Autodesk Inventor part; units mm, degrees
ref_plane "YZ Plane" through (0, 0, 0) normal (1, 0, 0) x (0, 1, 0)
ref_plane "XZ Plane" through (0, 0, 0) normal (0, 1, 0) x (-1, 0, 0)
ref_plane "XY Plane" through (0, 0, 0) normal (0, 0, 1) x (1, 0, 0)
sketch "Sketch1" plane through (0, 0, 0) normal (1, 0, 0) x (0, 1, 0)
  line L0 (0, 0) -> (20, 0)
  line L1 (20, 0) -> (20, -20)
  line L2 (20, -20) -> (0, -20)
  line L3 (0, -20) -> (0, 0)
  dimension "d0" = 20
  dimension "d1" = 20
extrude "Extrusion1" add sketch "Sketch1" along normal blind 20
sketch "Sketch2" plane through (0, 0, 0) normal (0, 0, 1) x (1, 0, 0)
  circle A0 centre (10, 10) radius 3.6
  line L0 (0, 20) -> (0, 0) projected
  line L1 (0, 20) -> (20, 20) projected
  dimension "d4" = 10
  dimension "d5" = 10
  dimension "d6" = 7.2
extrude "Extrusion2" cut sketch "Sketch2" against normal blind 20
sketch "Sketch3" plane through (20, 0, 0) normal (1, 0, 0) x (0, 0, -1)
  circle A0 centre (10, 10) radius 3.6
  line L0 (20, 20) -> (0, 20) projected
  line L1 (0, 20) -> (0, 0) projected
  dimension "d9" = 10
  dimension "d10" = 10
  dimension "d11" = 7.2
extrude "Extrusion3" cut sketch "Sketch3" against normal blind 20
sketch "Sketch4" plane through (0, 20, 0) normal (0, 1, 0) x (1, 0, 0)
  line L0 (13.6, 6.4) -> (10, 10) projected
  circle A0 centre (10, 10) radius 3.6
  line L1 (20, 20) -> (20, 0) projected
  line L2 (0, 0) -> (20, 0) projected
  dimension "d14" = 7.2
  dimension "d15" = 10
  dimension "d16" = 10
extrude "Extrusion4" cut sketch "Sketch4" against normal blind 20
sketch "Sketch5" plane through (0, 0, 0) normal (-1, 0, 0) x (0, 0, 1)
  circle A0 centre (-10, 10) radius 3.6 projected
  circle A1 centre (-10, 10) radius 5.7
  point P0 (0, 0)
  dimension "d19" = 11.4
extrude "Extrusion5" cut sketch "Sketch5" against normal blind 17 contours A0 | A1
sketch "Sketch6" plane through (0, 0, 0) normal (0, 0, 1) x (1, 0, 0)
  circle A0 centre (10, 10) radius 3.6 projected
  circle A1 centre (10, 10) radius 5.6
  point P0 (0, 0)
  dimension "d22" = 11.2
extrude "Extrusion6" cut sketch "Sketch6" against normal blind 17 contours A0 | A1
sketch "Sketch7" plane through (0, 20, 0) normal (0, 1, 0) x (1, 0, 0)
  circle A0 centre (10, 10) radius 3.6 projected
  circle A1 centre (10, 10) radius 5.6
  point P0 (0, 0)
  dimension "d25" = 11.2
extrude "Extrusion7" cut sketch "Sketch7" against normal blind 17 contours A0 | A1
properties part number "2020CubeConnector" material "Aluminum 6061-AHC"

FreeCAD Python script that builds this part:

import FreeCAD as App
import Part
import Sketcher
from FreeCAD import Vector


def add_polygon(sketch, points):
    """Adds a closed chain of lines whose ends are joined by coincident constraints."""
    first, n = sketch.GeometryCount, len(points)
    for a, b in zip(points, points[1:] + points[:1]):
        sketch.addGeometry(Part.LineSegment(App.Vector(*a, 0), App.Vector(*b, 0)), False)
    for i in range(n):
        sketch.addConstraint(Sketcher.Constraint("Coincident", first + i, 2, first + (i + 1) % n, 1))

doc = App.newDocument("Part")
body = doc.addObject("PartDesign::Body", "Body")

# Sketch on YZ plane
sketch1 = body.newObject("Sketcher::SketchObject", "Sketch")
sketch1.AttachmentSupport = (doc.getObject("YZ_Plane"), [""])
sketch1.MapMode = "FlatFace"
add_polygon(sketch1, [(20, 0), (0, 0), (0, -20), (20, -20)])  # lines 0-3
sketch1.addConstraint([
    Sketcher.Constraint("Horizontal", 0),
    Sketcher.Constraint("Vertical", 1),
    Sketcher.Constraint("Horizontal", 2),
    Sketcher.Constraint("Vertical", 3),
    Sketcher.Constraint("Coincident", 0, 2, -1, 1),
    Sketcher.Constraint("Equal", 2, 1),
    Sketcher.Constraint("DistanceX", 0, 2, 0, 1, 20.0),
])
pad1 = body.newObject("PartDesign::Pad", "Pad")
pad1.Profile = sketch1
pad1.Length = 20

# Sketch on XY plane
sketch2 = body.newObject("Sketcher::SketchObject", "Sketch001")
sketch2.AttachmentSupport = (doc.getObject("XY_Plane"), [""])
sketch2.MapMode = "FlatFace"
sketch2.addGeometry(Part.Circle(Vector(10, 10, 0), Vector(0, 0, 1), 3.6), False)
sketch2.addConstraint([
    Sketcher.Constraint("Diameter", 0, 7.2),
    Sketcher.Constraint("DistanceX", -1, 1, 0, 3, 10.0),
    Sketcher.Constraint("DistanceY", -1, 1, 0, 3, 10.0),
])
pocket1 = body.newObject("PartDesign::Pocket", "Pocket")
pocket1.Profile = sketch2
pocket1.Length = 20

# Sketch on YZ plane
sketch3 = body.newObject("Sketcher::SketchObject", "Sketch002")
sketch3.AttachmentSupport = (doc.getObject("YZ_Plane"), [""])
sketch3.MapMode = "FlatFace"
sketch3.AttachmentOffset = App.Placement(Vector(0, 0, 20), App.Rotation())
sketch3.addGeometry(Part.Circle(Vector(10, -10, 0), Vector(0, 0, 1), 3.6), False)
sketch3.addConstraint([
    Sketcher.Constraint("Diameter", 0, 7.2),
    Sketcher.Constraint("DistanceX", -1, 1, 0, 3, 10.0),
    Sketcher.Constraint("DistanceY", 0, 3, -1, 1, 10.0),
])
pocket2 = body.newObject("PartDesign::Pocket", "Pocket001")
pocket2.Profile = sketch3
pocket2.Length = 20

# Sketch on XZ plane
sketch4 = body.newObject("Sketcher::SketchObject", "Sketch003")
sketch4.AttachmentSupport = (doc.getObject("XZ_Plane"), [""])
sketch4.MapMode = "FlatFace"
sketch4.AttachmentOffset = App.Placement(Vector(0, 0, -20), App.Rotation())
sketch4.addGeometry(Part.Circle(Vector(10, -10, 0), Vector(0, 0, 1), 3.6), False)
sketch4.addConstraint([
    Sketcher.Constraint("Diameter", 0, 7.2),
    Sketcher.Constraint("DistanceX", -1, 1, 0, 3, 10.0),
    Sketcher.Constraint("DistanceY", 0, 3, -1, 1, 10.0),
])
pocket3 = body.newObject("PartDesign::Pocket", "Pocket002")
pocket3.Profile = sketch4
pocket3.Length = 20
pocket3.Reversed = True

# Sketch on YZ plane
sketch5 = body.newObject("Sketcher::SketchObject", "Sketch004")
sketch5.AttachmentSupport = (doc.getObject("YZ_Plane"), [""])
sketch5.MapMode = "FlatFace"
sketch5.addGeometry(Part.Circle(Vector(10, -10, 0), Vector(0, 0, 1), 6), False)
sketch5.addConstraint([
    Sketcher.Constraint("Diameter", 0, 11.4),
    Sketcher.Constraint("DistanceX", -1, 1, 0, 3, 10.0),
    Sketcher.Constraint("DistanceY", 0, 3, -1, 1, 10.0),
])
pocket4 = body.newObject("PartDesign::Pocket", "Pocket003")
pocket4.Profile = sketch5
pocket4.Length = 17
pocket4.Reversed = True

# Sketch on XY plane
sketch6 = body.newObject("Sketcher::SketchObject", "Sketch005")
sketch6.AttachmentSupport = (doc.getObject("XY_Plane"), [""])
sketch6.MapMode = "FlatFace"
sketch6.addGeometry(Part.Circle(Vector(10, 10, 0), Vector(0, 0, 1), 6), False)
sketch6.addConstraint([
    Sketcher.Constraint("Diameter", 0, 11.2),
    Sketcher.Constraint("DistanceX", -1, 1, 0, 3, 10.0),
    Sketcher.Constraint("DistanceY", -1, 1, 0, 3, 10.0),
])
pocket5 = body.newObject("PartDesign::Pocket", "Pocket004")
pocket5.Profile = sketch6
pocket5.Length = 17

# Sketch on XZ plane
sketch7 = body.newObject("Sketcher::SketchObject", "Sketch006")
sketch7.AttachmentSupport = (doc.getObject("XZ_Plane"), [""])
sketch7.MapMode = "FlatFace"
sketch7.AttachmentOffset = App.Placement(Vector(0, 0, -20), App.Rotation())
sketch7.addGeometry(Part.Circle(Vector(10, -10, 0), Vector(0, 0, 1), 6), False)
sketch7.addConstraint([
    Sketcher.Constraint("Diameter", 0, 11.2),
    Sketcher.Constraint("DistanceX", -1, 1, 0, 3, 10.0),
    Sketcher.Constraint("DistanceY", 0, 3, -1, 1, 10.0),
])
pocket6 = body.newObject("PartDesign::Pocket", "Pocket005")
pocket6.Profile = sketch7
pocket6.Length = 17
pocket6.Reversed = True

doc.recompute()
